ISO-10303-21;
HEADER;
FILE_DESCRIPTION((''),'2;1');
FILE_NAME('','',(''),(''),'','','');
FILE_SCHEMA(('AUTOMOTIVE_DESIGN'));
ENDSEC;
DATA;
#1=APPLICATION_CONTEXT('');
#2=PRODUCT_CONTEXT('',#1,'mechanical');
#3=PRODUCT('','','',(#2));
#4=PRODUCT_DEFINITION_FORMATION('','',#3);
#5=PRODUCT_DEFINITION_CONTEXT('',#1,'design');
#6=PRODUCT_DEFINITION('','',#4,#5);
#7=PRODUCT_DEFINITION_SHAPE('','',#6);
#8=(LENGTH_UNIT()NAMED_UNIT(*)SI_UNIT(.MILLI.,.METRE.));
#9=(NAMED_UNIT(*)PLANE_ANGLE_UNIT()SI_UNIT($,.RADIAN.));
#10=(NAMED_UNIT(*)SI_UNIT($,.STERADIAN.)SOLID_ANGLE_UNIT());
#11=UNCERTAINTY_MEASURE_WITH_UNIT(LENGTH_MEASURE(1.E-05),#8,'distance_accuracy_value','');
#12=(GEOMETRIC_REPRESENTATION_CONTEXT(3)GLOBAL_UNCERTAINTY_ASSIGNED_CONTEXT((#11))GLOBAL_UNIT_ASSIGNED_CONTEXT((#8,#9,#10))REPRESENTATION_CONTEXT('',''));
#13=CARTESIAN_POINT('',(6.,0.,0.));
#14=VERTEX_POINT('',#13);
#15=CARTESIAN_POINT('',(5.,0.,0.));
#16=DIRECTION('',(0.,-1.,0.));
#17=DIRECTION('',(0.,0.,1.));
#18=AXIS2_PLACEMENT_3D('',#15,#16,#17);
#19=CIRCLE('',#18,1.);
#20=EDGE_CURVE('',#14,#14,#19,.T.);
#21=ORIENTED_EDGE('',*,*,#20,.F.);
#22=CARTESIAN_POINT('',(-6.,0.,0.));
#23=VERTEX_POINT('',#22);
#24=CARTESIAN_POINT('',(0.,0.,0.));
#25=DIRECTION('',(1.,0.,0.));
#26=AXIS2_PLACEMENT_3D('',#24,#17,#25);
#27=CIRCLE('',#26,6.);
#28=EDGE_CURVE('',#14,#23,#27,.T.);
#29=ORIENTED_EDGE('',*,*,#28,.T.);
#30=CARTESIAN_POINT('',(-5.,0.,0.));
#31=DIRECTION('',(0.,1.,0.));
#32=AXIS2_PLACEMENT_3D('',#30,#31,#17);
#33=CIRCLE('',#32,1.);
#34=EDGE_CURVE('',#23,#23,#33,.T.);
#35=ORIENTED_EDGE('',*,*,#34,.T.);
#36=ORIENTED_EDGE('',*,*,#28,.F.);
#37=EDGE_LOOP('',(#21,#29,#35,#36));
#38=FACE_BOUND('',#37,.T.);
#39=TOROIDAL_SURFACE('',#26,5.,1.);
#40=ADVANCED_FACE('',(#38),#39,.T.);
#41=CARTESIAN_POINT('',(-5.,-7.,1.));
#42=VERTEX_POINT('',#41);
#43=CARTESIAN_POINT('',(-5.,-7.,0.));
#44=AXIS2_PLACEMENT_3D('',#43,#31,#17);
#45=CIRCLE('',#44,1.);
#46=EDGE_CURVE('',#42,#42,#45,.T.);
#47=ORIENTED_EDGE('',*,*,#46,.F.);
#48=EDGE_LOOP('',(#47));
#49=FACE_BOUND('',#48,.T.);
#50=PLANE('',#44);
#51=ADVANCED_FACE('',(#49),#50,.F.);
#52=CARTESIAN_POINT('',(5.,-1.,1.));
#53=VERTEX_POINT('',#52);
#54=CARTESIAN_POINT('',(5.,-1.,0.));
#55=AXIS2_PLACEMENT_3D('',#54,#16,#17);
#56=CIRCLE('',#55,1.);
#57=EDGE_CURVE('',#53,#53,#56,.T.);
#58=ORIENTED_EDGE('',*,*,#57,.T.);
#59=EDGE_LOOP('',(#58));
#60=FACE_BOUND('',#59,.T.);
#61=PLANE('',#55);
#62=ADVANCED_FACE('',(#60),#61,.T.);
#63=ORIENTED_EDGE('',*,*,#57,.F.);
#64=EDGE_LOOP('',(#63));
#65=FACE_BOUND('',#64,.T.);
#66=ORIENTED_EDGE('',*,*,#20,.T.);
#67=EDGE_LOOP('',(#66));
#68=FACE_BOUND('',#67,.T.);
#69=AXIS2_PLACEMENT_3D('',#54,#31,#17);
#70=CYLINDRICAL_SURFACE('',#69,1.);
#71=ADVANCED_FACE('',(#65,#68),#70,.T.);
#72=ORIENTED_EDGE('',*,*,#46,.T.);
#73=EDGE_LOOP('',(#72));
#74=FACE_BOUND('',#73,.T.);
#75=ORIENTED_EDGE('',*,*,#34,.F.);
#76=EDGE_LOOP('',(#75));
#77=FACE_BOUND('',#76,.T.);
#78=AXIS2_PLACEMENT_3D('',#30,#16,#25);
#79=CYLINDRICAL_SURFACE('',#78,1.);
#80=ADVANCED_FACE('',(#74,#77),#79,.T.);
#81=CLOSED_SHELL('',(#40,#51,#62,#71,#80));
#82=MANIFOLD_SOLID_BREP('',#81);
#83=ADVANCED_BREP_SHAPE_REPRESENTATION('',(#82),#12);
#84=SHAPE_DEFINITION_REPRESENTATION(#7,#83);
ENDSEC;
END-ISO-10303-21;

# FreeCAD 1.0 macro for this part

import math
import FreeCAD as App
import Part
import Sketcher
from FreeCAD import Vector
Q = App.Units.Quantity

doc = App.newDocument("Part")
body = doc.addObject("PartDesign::Body", "Body")

sketch1 = doc.addObject("Sketcher::SketchObject", "Sketch")
body.addObject(sketch1)
sketch1.AttachmentSupport = (doc.XZ_Plane, [""])
sketch1.MapMode = "FlatFace"
sketch1.AttachmentOffset = App.Placement(Vector(0, 0, 7), App.Rotation())
sketch1.addGeometry(Part.Circle(Vector(-5, 0, 0), Vector(0, 0, 1), 1), False)
sketch1.addConstraint([
    Sketcher.Constraint("PointOnObject", 0, 3, -1),
    Sketcher.Constraint("Diameter", 0, Q("2 mm")),
    Sketcher.Constraint("DistanceX", 0, 3, -1, 1, Q("5 mm")),
])

sketch2 = doc.addObject("Sketcher::SketchObject", "Sketch001")
body.addObject(sketch2)
sketch2.AttachmentSupport = (doc.XY_Plane, [""])
sketch2.MapMode = "FlatFace"
sketch2.addGeometry([
    Part.LineSegment(Vector(-5, -7, 0), Vector(-5, 0, 0)),
    Part.ArcOfCircle(Part.Circle(Vector(0, 0, 0), Vector(0, 0, 1), 5), math.radians(0), math.radians(180)),
    Part.LineSegment(Vector(5, 0, 0), Vector(5, -1, 0)),
], False)
sketch2.addConstraint([
    Sketcher.Constraint("Tangent", 0, 2, 1, 2),
    Sketcher.Constraint("Tangent", 1, 1, 2, 1),
    Sketcher.Constraint("Vertical", 0),
    Sketcher.Constraint("Vertical", 2),
    Sketcher.Constraint("Coincident", 1, 3, -1, 1),
    Sketcher.Constraint("Radius", 1, Q("5 mm")),
    Sketcher.Constraint("DistanceY", 0, 1, 0, 2, Q("7 mm")),
    Sketcher.Constraint("DistanceY", 2, 2, 2, 1, Q("1 mm")),
])
doc.recompute()

additivepipe = doc.addObject("PartDesign::AdditivePipe", "AdditivePipe")
body.addObject(additivepipe)
additivepipe.Profile = sketch1
additivepipe.Spine = (sketch2, ["Edge1", "Edge2", "Edge3"])

doc.recompute()
